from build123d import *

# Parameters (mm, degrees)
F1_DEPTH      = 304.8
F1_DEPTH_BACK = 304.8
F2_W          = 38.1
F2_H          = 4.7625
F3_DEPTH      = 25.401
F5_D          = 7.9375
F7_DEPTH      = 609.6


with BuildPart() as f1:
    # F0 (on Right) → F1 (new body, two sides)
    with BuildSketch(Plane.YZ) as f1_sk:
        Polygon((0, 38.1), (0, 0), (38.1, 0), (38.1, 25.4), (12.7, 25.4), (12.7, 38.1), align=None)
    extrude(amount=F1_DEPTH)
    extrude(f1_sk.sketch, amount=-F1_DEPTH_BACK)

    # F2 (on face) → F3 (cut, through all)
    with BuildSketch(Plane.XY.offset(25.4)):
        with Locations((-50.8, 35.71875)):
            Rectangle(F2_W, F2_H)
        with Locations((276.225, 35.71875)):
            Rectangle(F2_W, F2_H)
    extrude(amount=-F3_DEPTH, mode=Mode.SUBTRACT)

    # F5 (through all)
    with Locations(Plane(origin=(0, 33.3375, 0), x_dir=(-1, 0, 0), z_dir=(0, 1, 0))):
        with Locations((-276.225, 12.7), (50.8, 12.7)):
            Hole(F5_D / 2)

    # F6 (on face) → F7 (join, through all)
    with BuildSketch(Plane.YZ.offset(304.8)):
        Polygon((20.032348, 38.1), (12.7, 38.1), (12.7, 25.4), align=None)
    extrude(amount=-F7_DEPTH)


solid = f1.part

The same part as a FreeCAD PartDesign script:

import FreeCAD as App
import Part
import Sketcher
Q = App.Units.Quantity


def add_polygon(sketch, points):
    """Adds a closed chain of lines whose ends are joined by coincident constraints."""
    first, n = sketch.GeometryCount, len(points)
    for a, b in zip(points, points[1:] + points[:1]):
        sketch.addGeometry(Part.LineSegment(App.Vector(*a, 0), App.Vector(*b, 0)), False)
    for i in range(n):
        sketch.addConstraint(Sketcher.Constraint("Coincident", first + i, 2, first + (i + 1) % n, 1))

doc = App.newDocument("Part")
body = doc.addObject("PartDesign::Body", "Body")

# Sketch on YZ plane
sketch1 = body.newObject("Sketcher::SketchObject", "Sketch")
sketch1.AttachmentSupport = (doc.getObject("YZ_Plane"), [""])
sketch1.MapMode = "FlatFace"
add_polygon(sketch1, [(0, 38), (0, 0), (38, 0), (38, 25), (13, 25), (13, 38)])  # lines 0-5
sketch1.addConstraint([
    Sketcher.Constraint("Vertical", 0),
    Sketcher.Constraint("Horizontal", 1),
    Sketcher.Constraint("Vertical", 2),
    Sketcher.Constraint("Horizontal", 3),
    Sketcher.Constraint("Vertical", 4),
    Sketcher.Constraint("Horizontal", 5),
    Sketcher.Constraint("Coincident", 0, 2, -1, 1),
    Sketcher.Constraint("Equal", 1, 0),
    Sketcher.Constraint("Equal", 3, 2),
    Sketcher.Constraint("DistanceX", 3, 2, 3, 1, Q("1 in")),
    Sketcher.Constraint("DistanceX", 1, 1, 1, 2, Q("1.5 in")),
])
pad1 = body.newObject("PartDesign::Pad", "Pad")
pad1.Profile = sketch1
pad1.Type = "TwoLengths"
pad1.Length = Q("12 in")
pad1.Length2 = Q("12 in")

# Sketch on XY plane
sketch2 = body.newObject("Sketcher::SketchObject", "Sketch001")
sketch2.AttachmentSupport = (doc.getObject("XY_Plane"), [""])
sketch2.MapMode = "FlatFace"
sketch2.AttachmentOffset = App.Placement(App.Vector(0, 0, 1 * 25.4), App.Rotation())
add_polygon(sketch2, [(-69.8, 38.1), (-69.8, 33.3), (-31.8, 33.3), (-31.8, 38.1)])  # lines 0-3
add_polygon(sketch2, [(257.2, 38.1), (257.2, 33.3), (295.3, 33.3), (295.3, 38.1)])  # lines 4-7
sketch2.addConstraint([
    Sketcher.Constraint("Vertical", 0),
    Sketcher.Constraint("Horizontal", 1),
    Sketcher.Constraint("Vertical", 2),
    Sketcher.Constraint("Horizontal", 3),
    Sketcher.Constraint("Vertical", 4),
    Sketcher.Constraint("Horizontal", 5),
    Sketcher.Constraint("Vertical", 6),
    Sketcher.Constraint("Horizontal", 7),
    Sketcher.Constraint("Horizontal", 1, 2, 4, 2),
    Sketcher.Constraint("Horizontal", 3, 2, 6, 2),
    Sketcher.Constraint("Equal", 3, 5),
    Sketcher.Constraint("DistanceX", 1, 1, 1, 2, Q("1.5 in")),
    Sketcher.Constraint("DistanceY", -1, 1, 2, 2, Q("1.5 in")),
    Sketcher.Constraint("DistanceY", 0, 2, 0, 1, Q("0.1875 in")),
    Sketcher.Constraint("DistanceX", 0, 2, -1, 1, Q("2.75 in")),
    Sketcher.Constraint("DistanceX", -1, 1, 4, 2, Q("10.125 in")),
])
pocket1 = body.newObject("PartDesign::Pocket", "Pocket")
pocket1.Profile = sketch2
pocket1.Type = "ThroughAll"

# Sketch on XZ plane
sketch3 = body.newObject("Sketcher::SketchObject", "Sketch002")
sketch3.AttachmentSupport = (doc.getObject("XZ_Plane"), [""])
sketch3.MapMode = "FlatFace"
sketch3.AttachmentOffset = App.Placement(App.Vector(0, 0, -1.3125 * 25.4), App.Rotation())
sketch3.addGeometry([
    Part.Circle(App.Vector(276.2, 12.7, 0), App.Vector(0, 0, 1), 4),
    Part.Circle(App.Vector(-50.8, 12.7, 0), App.Vector(0, 0, 1), 4),
], False)
sketch3.addConstraint([
    Sketcher.Constraint("Equal", 0, 1),
    Sketcher.Constraint("Horizontal", 0, 3, 1, 3),
    Sketcher.Constraint("Diameter", 0, Q("0.3125 in")),
    Sketcher.Constraint("DistanceX", 1, 3, -1, 1, Q("2 in")),
    Sketcher.Constraint("DistanceY", -1, 1, 0, 3, Q("0.5 in")),
    Sketcher.Constraint("DistanceX", -1, 1, 0, 3, Q("10.875 in")),
])
doc.recompute()
hole = body.newObject("PartDesign::Hole", "Hole")
hole.Profile = sketch3
hole.ThreadType = "None"
hole.Diameter = Q("0.3125 in")
hole.DepthType = "ThroughAll"
hole.Reversed = True

# Sketch on YZ plane
sketch4 = body.newObject("Sketcher::SketchObject", "Sketch003")
sketch4.AttachmentSupport = (doc.getObject("YZ_Plane"), [""])
sketch4.MapMode = "FlatFace"
sketch4.AttachmentOffset = App.Placement(App.Vector(0, 0, 12 * 25.4), App.Rotation())
add_polygon(sketch4, [(20, 38), (13, 38), (13, 25)])  # lines 0-2
sketch4.addConstraint([
    Sketcher.Constraint("Horizontal", 0),
    Sketcher.Constraint("Vertical", 1),
    Sketcher.Constraint("DistanceY", 1, 2, 1, 1, Q("0.5 in")),
    Sketcher.Constraint("DistanceY", -1, 1, 1, 2, Q("1 in")),
    Sketcher.Constraint("Angle", 2, Q("60.000001 deg")),
    Sketcher.Constraint("DistanceX", -1, 1, 0, 2, Q("0.5 in")),
])
pad2 = body.newObject("PartDesign::Pad", "Pad001")
pad2.Profile = sketch4
pad2.Length = Q("24 in")
pad2.Reversed = True

doc.recompute()
